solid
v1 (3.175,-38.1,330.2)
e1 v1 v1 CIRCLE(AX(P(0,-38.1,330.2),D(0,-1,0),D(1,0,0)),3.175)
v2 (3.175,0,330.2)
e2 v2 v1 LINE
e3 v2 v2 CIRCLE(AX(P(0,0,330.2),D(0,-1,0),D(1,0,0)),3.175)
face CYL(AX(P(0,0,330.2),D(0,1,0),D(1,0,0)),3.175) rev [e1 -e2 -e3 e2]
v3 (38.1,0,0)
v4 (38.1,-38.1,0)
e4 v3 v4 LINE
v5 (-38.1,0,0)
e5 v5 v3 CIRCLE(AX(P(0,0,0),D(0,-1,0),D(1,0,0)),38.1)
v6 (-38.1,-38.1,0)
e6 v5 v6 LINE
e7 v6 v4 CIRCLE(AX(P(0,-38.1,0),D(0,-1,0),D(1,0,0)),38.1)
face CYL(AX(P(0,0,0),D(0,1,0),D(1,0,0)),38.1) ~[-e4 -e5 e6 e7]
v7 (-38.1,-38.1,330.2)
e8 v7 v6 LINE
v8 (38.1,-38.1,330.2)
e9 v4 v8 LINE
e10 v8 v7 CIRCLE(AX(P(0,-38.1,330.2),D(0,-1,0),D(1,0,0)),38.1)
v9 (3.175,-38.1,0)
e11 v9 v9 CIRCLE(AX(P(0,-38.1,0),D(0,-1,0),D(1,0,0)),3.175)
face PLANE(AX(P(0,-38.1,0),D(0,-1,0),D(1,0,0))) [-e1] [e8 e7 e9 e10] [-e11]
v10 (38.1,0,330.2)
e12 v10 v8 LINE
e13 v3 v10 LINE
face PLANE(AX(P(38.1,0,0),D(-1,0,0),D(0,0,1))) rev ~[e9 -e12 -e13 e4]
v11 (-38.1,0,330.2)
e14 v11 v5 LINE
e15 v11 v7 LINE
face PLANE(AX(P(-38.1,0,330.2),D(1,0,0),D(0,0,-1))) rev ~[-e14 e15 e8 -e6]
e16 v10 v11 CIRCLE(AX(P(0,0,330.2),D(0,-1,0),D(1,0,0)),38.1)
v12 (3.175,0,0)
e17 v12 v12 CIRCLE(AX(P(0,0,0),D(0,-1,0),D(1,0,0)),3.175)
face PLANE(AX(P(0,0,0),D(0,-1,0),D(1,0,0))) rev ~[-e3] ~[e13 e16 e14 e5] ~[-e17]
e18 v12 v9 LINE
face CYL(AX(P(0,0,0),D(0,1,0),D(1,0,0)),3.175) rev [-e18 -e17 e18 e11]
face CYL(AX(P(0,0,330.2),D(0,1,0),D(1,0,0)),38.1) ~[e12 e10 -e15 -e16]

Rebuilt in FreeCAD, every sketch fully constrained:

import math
import FreeCAD as App
import Part
import Sketcher
from FreeCAD import Vector
Q = App.Units.Quantity

doc = App.newDocument("Part")
body = doc.addObject("PartDesign::Body", "Body")

sketch1 = body.newObject("Sketcher::SketchObject", "Sketch")
sketch1.AttachmentSupport = (doc.getObject("XZ_Plane"), [""])
sketch1.MapMode = "FlatFace"
sketch1.addGeometry([
    Part.ArcOfCircle(Part.Circle(Vector(0, 0, 0), Vector(0, 0, 1), 38.1), math.radians(180), math.radians(360)),
    Part.LineSegment(Vector(38.1, 0, 0), Vector(38.1, 330.2, 0)),
    Part.ArcOfCircle(Part.Circle(Vector(0, 330.2, 0), Vector(0, 0, 1), 38.1), math.radians(0), math.radians(180)),
    Part.LineSegment(Vector(-38.1, 330.2, 0), Vector(-38.1, 0, 0)),
    Part.Circle(Vector(0, 0, 0), Vector(0, 0, 1), 3.2),
    Part.Circle(Vector(0, 330.2, 0), Vector(0, 0, 1), 3.2),
], False)
sketch1.addConstraint([
    Sketcher.Constraint("Tangent", 0, 2, 1, 1),
    Sketcher.Constraint("Tangent", 1, 2, 2, 1),
    Sketcher.Constraint("Tangent", 2, 2, 3, 1),
    Sketcher.Constraint("Tangent", 3, 2, 0, 1),
    Sketcher.Constraint("Vertical", 1),
    Sketcher.Constraint("Vertical", 3),
    Sketcher.Constraint("Coincident", 0, 3, -1, 1),
    Sketcher.Constraint("Coincident", 4, 3, -1, 1),
    Sketcher.Constraint("Coincident", 5, 3, 2, 3),
    Sketcher.Constraint("Equal", 4, 5),
    Sketcher.Constraint("Radius", 0, Q("1.5 in")),
    Sketcher.Constraint("Diameter", 4, Q("0.25 in")),
    Sketcher.Constraint("DistanceY", 1, 1, 1, 2, Q("13 in")),
])
pad1 = body.newObject("PartDesign::Pad", "Pad")
pad1.Profile = sketch1
pad1.Length = Q("1.5 in")

doc.recompute()
